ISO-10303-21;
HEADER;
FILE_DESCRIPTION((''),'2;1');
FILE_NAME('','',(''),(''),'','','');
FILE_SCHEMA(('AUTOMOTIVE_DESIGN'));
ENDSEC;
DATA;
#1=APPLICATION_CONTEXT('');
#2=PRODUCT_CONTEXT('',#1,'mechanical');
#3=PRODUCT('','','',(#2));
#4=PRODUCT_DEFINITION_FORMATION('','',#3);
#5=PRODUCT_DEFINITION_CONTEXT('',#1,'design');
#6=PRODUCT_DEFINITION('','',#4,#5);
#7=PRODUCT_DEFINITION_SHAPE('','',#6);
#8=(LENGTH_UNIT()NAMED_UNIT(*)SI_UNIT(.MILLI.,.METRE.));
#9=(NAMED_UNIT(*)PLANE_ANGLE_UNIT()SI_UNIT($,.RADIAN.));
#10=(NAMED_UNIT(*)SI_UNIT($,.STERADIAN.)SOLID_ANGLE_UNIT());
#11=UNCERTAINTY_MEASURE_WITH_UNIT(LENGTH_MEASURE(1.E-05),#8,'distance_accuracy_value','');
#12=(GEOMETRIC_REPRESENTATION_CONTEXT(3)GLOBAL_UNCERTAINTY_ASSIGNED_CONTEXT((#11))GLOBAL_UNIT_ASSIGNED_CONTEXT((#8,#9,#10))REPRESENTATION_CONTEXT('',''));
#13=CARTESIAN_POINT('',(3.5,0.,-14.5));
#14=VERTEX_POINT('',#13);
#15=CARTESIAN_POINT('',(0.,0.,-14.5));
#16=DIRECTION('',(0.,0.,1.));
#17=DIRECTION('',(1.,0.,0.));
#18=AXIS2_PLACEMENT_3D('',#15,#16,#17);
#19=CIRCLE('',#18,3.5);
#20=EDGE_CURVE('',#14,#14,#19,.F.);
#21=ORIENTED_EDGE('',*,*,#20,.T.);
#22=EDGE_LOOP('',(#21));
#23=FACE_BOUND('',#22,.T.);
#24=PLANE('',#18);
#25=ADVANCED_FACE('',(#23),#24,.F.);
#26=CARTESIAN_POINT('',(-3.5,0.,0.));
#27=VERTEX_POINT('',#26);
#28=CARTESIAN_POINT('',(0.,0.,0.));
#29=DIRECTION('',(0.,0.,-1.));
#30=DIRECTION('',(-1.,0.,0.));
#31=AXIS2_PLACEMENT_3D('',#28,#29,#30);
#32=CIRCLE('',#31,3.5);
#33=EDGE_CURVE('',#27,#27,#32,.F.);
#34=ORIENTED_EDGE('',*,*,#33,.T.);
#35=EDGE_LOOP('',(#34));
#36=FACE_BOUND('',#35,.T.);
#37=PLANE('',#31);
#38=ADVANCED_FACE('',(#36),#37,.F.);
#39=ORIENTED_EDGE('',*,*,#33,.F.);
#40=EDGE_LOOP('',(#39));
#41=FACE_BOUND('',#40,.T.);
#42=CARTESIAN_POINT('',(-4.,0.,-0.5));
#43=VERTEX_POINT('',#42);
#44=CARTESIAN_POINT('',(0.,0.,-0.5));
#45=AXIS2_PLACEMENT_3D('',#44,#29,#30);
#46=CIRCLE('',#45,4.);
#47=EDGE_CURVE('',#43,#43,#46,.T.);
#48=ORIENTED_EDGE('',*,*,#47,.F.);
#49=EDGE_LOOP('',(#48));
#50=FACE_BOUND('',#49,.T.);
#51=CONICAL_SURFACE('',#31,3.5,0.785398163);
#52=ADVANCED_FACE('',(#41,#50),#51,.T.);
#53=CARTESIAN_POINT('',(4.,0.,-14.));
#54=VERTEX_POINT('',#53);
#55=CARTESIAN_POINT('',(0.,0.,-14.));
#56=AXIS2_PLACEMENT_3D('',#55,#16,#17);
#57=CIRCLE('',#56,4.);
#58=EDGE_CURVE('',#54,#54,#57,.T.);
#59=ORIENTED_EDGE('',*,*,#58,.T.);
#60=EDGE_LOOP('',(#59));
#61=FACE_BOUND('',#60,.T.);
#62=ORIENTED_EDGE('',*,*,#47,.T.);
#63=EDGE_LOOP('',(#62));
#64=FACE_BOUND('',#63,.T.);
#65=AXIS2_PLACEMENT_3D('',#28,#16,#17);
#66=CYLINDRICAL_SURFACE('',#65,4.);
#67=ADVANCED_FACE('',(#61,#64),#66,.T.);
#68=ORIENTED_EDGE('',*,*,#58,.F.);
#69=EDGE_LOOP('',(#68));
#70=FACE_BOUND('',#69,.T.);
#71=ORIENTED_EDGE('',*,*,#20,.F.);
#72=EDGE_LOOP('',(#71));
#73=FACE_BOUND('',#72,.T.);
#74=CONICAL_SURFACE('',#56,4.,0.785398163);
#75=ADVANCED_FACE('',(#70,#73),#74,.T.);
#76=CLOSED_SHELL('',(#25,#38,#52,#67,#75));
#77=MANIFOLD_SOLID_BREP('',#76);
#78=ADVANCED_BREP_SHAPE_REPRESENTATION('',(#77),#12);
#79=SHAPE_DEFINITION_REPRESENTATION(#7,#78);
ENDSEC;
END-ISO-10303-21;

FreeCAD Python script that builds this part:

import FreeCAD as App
import Part
import Sketcher

V = App.Vector


def edges_at(feature, points):
    """Names of the edges that pass closest to the given points."""
    edges = feature.Shape.Edges
    near = lambda p: min(range(len(edges)), key=lambda i: edges[i].distToShape(Part.Vertex(*p))[0])
    return sorted({f"Edge{near(p) + 1}" for p in points})


def add_polygon(sketch, points):
    """Adds a closed chain of lines whose ends are joined by coincident constraints."""
    first, n = sketch.GeometryCount, len(points)
    for a, b in zip(points, points[1:] + points[:1]):
        sketch.addGeometry(Part.LineSegment(App.Vector(*a, 0), App.Vector(*b, 0)), False)
    for i in range(n):
        sketch.addConstraint(Sketcher.Constraint("Coincident", first + i, 2, first + (i + 1) % n, 1))

doc = App.newDocument("Part")
params = doc.addObject("Spreadsheet::Sheet", "Params")
for row, (alias, value) in enumerate([
    ("sketch1_width", "4 mm"),
    ("sketch1_height", "14.5 mm"),
    ("revolution_angle", "360 deg"),
    ("chamfer_size", "0.5 mm"),
], start=1):
    params.set(f"A{row}", alias)
    params.set(f"B{row}", "=" + value)
    params.setAlias(f"B{row}", alias)

body = doc.addObject("PartDesign::Body", "Body")

# Sketch on YZ plane
sketch1 = body.newObject("Sketcher::SketchObject", "Sketch")
sketch1.AttachmentSupport = (doc.getObject("YZ_Plane"), [""])
sketch1.MapMode = "FlatFace"
add_polygon(sketch1, [(4, 0), (0, 0), (0, -14.5), (4, -14.5)])  # lines 0-3
sketch1.addConstraint(Sketcher.Constraint("Horizontal", 0))
sketch1.addConstraint(Sketcher.Constraint("Vertical", 1))
sketch1.addConstraint(Sketcher.Constraint("Horizontal", 2))
sketch1.addConstraint(Sketcher.Constraint("Vertical", 3))
sketch1.addConstraint(Sketcher.Constraint("Coincident", 0, 2, -1, 1))
sketch1.addConstraint(Sketcher.Constraint("DistanceX", 0, 2, 0, 1, 4.0))
sketch1.addConstraint(Sketcher.Constraint("DistanceY", 1, 2, 1, 1, 14.5))
sketch1.setExpression("Constraints[9]", "Params.sketch1_width")
sketch1.setExpression("Constraints[10]", "Params.sketch1_height")
revolution = body.newObject("PartDesign::Revolution", "Revolution")
revolution.Profile = sketch1
revolution.ReferenceAxis = (sketch1, ["V_Axis"])
revolution.setExpression("Angle", "Params.revolution_angle")
doc.recompute()

chamfer = body.newObject("PartDesign::Chamfer", "Chamfer")
chamfer.Base = (revolution, edges_at(revolution, [(-4, 0, -14.5), (-4, 0, 0)]))
chamfer.setExpression("Size", "Params.chamfer_size")

doc.recompute()
